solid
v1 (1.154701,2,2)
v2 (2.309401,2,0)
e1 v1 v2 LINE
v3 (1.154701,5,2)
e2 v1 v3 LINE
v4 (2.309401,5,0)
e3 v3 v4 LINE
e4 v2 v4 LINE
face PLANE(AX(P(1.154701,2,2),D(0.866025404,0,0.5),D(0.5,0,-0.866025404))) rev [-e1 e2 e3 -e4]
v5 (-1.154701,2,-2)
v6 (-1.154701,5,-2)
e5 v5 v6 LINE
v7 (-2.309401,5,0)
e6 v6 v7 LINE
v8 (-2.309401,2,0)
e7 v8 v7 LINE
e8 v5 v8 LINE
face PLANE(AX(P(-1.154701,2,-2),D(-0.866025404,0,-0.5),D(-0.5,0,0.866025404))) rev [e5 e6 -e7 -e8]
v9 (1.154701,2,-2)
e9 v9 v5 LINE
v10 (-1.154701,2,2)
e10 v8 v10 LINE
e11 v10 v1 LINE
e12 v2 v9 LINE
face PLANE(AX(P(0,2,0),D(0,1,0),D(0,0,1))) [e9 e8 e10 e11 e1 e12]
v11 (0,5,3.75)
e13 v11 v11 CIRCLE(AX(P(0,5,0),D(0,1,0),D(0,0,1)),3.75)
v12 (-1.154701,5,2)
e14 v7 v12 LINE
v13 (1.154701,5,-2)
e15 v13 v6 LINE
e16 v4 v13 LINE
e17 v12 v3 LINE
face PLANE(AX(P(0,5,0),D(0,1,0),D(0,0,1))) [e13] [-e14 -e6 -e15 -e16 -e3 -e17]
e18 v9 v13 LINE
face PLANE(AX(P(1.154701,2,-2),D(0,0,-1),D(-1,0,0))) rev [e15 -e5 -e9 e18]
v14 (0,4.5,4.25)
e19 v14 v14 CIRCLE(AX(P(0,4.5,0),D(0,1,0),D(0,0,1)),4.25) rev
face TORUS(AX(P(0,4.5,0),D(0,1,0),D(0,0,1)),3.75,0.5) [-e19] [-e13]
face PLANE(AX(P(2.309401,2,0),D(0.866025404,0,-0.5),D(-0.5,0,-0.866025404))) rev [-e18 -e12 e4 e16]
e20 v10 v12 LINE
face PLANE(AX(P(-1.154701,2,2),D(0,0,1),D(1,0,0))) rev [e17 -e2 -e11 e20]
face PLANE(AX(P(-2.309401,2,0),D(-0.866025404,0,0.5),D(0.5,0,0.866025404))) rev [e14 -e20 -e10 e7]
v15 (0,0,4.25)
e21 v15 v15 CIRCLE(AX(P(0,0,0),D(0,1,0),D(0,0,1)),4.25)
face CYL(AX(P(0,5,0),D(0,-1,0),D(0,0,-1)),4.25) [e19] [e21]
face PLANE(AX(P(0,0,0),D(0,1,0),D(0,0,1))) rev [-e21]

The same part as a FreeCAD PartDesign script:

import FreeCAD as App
import Part
import Sketcher

V = App.Vector
Q = App.Units.Quantity


def edges_at(feature, points):
    """Names of the edges that pass closest to the given points."""
    edges = feature.Shape.Edges
    near = lambda p: min(range(len(edges)), key=lambda i: edges[i].distToShape(Part.Vertex(*p))[0])
    return sorted({f"Edge{near(p) + 1}" for p in points})

doc = App.newDocument("Part")
params = doc.addObject("Spreadsheet::Sheet", "Params")
for row, (alias, value) in enumerate([
    ("sketch1_diameter", "8.5 mm"),
    ("pad1_length", "5 mm"),
    ("pocket1_length", "3 mm"),
    ("fillet_radius", "0.5 mm"),
], start=1):
    params.set(f"A{row}", alias)
    params.set(f"B{row}", "=" + value)
    params.setAlias(f"B{row}", alias)

body = doc.addObject("PartDesign::Body", "Body")

# Sketch on XZ plane
sketch1 = body.newObject("Sketcher::SketchObject", "Sketch")
sketch1.AttachmentSupport = (doc.getObject("XZ_Plane"), [""])
sketch1.MapMode = "FlatFace"
sketch1.addGeometry(Part.Circle(V(0, 0, 0), V(0, 0, 1), 4.2), False)
sketch1.addConstraint([
    Sketcher.Constraint("Coincident", 0, 3, -1, 1),
    Sketcher.Constraint("Diameter", 0, 8.5),
])
sketch1.setExpression("Constraints[1]", "Params.sketch1_diameter")
pad1 = body.newObject("PartDesign::Pad", "Pad")
pad1.Profile = sketch1
pad1.setExpression("Length", "Params.pad1_length")
pad1.Reversed = True

# Sketch on XZ plane
sketch2 = body.newObject("Sketcher::SketchObject", "Sketch001")
sketch2.AttachmentSupport = (doc.getObject("XZ_Plane"), [""])
sketch2.MapMode = "FlatFace"
sketch2.AttachmentOffset = App.Placement(V(0, 0, -5), App.Rotation())
sketch2.addGeometry([
    Part.LineSegment(V(-2.3, 0, 0), V(-1.2, 2, 0)),  # 0
    Part.LineSegment(V(-1.2, 2, 0), V(1.2, 2, 0)),  # 1
    Part.LineSegment(V(1.2, 2, 0), V(2.3, 0, 0)),  # 2
    Part.LineSegment(V(2.3, 0, 0), V(1.2, -2, 0)),  # 3
    Part.LineSegment(V(1.2, -2, 0), V(-1.2, -2, 0)),  # 4
    Part.LineSegment(V(-1.2, -2, 0), V(-2.3, 0, 0)),  # 5
], False)
sketch2.addConstraint([
    Sketcher.Constraint("Coincident", 0, 2, 1, 1),
    Sketcher.Constraint("Coincident", 1, 2, 2, 1),
    Sketcher.Constraint("Coincident", 2, 2, 3, 1),
    Sketcher.Constraint("Coincident", 3, 2, 4, 1),
    Sketcher.Constraint("Coincident", 4, 2, 5, 1),
    Sketcher.Constraint("Coincident", 5, 2, 0, 1),
    Sketcher.Constraint("Horizontal", 1),
    Sketcher.Constraint("Horizontal", 4),
    Sketcher.Constraint("Symmetric", 0, 2, 3, 2, -1, 1),
    Sketcher.Constraint("Symmetric", 2, 2, 5, 2, -1, 1),
    Sketcher.Constraint("PointOnObject", 2, 2, -1),
    Sketcher.Constraint("Parallel", 2, 5),
    Sketcher.Constraint("Vertical", 1, 2, 3, 2),
    Sketcher.Constraint("Angle", 0, Q("60 deg")),
    Sketcher.Constraint("DistanceY", -1, 1, 0, 2, 2.0),
    Sketcher.Constraint("DistanceX", 1, 1, 1, 2, 2.309401),
])
pocket1 = body.newObject("PartDesign::Pocket", "Pocket")
pocket1.Profile = sketch2
pocket1.setExpression("Length", "Params.pocket1_length")
pocket1.Reversed = True
doc.recompute()

fillet = body.newObject("PartDesign::Fillet", "Fillet")
fillet.Base = (pocket1, edges_at(pocket1, [(-4.25, 5, 0)]))
fillet.setExpression("Radius", "Params.fillet_radius")

doc.recompute()
